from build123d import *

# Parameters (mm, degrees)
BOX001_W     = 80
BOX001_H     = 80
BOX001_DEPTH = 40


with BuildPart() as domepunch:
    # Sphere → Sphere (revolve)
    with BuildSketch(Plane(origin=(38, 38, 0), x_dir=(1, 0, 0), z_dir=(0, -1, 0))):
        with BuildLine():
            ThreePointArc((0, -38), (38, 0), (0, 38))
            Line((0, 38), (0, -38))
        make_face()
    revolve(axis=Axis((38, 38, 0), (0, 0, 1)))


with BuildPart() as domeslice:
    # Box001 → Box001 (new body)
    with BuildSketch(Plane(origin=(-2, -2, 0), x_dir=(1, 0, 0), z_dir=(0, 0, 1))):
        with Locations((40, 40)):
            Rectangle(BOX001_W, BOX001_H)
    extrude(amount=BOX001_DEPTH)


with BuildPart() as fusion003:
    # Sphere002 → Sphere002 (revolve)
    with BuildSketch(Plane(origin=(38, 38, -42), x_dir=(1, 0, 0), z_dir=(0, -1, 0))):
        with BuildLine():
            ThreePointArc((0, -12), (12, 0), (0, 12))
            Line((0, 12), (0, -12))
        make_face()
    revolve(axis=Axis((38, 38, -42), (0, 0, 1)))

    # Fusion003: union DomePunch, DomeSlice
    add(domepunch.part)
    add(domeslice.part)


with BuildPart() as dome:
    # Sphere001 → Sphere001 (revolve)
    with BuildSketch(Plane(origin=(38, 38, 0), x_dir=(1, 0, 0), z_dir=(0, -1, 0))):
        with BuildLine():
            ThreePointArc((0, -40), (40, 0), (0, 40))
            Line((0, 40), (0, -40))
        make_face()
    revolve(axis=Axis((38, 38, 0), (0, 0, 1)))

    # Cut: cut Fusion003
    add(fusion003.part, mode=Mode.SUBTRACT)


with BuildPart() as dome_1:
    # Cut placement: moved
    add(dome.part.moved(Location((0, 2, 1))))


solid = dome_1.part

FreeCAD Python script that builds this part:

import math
import FreeCAD as App
import Part
import Sketcher

V = App.Vector

doc = App.newDocument("Part")
body = doc.addObject("PartDesign::Body", "Body")

# Sketch on XZ plane
sketch1 = doc.addObject("Sketcher::SketchObject", "Sketch")
body.addObject(sketch1)
sketch1.AttachmentSupport = (doc.XZ_Plane, [""])
sketch1.MapMode = "FlatFace"
sketch1.AttachmentOffset = App.Placement(V(0, 0, -38), App.Rotation())
sketch1.addGeometry([
    Part.ArcOfCircle(Part.Circle(V(38, 0, 0), V(0, 0, 1), 38), math.radians(-90), math.radians(90)),
    Part.LineSegment(V(38, 38, 0), V(38, -38, 0)),
], False)
sketch1.addGeometry(Part.LineSegment(V(38, -38, 0), V(38, 38, 0)), True)  # axis
sketch1.addConstraint([
    Sketcher.Constraint("Coincident", 0, 1, 1, 2),
    Sketcher.Constraint("Coincident", 1, 1, 0, 2),
    Sketcher.Constraint("Vertical", 1),
    Sketcher.Constraint("Vertical", 2),
    Sketcher.Constraint("Coincident", 2, 1, 0, 1),
    Sketcher.Constraint("PointOnObject", 0, 3, -1),
    Sketcher.Constraint("Equal", 1, 2),
    Sketcher.Constraint("Radius", 0, 38.0),
    Sketcher.Constraint("DistanceX", -1, 1, 0, 3, 38.0),
    Sketcher.Constraint("DistanceX", -1, 1, 0, 1, 38.0),
])
revolution = doc.addObject("PartDesign::Revolution", "Revolution")
body.addObject(revolution)
revolution.Profile = sketch1
revolution.ReferenceAxis = (sketch1, ["Axis0"])
revolution.Angle = 360
body2 = doc.addObject("PartDesign::Body", "Body001")

# Sketch on XY plane
sketch2 = doc.addObject("Sketcher::SketchObject", "Sketch001")
body2.addObject(sketch2)
sketch2.AttachmentSupport = (doc.getObject("XY_Plane001"), [""])
sketch2.MapMode = "FlatFace"
sketch2.addGeometry([
    Part.LineSegment(V(-2, 78, 0), V(-2, -2, 0)),
    Part.LineSegment(V(-2, -2, 0), V(78, -2, 0)),
    Part.LineSegment(V(78, -2, 0), V(78, 78, 0)),
    Part.LineSegment(V(78, 78, 0), V(-2, 78, 0)),
], False)
sketch2.addConstraint([
    Sketcher.Constraint("Coincident", 0, 2, 1, 1),
    Sketcher.Constraint("Coincident", 1, 2, 2, 1),
    Sketcher.Constraint("Coincident", 2, 2, 3, 1),
    Sketcher.Constraint("Coincident", 3, 2, 0, 1),
    Sketcher.Constraint("Vertical", 0),
    Sketcher.Constraint("Horizontal", 1),
    Sketcher.Constraint("Vertical", 2),
    Sketcher.Constraint("Horizontal", 3),
    Sketcher.Constraint("Equal", 3, 0),
    Sketcher.Constraint("DistanceX", 1, 1, 1, 2, 80.0),
    Sketcher.Constraint("DistanceX", 0, 2, -1, 1, 2.0),
    Sketcher.Constraint("DistanceY", 0, 2, -1, 1, 2.0),
])
pad1 = doc.addObject("PartDesign::Pad", "Pad")
body2.addObject(pad1)
pad1.Profile = sketch2
pad1.Length = 40
body3 = doc.addObject("PartDesign::Body", "Body002")

# Sketch on XZ plane
sketch3 = doc.addObject("Sketcher::SketchObject", "Sketch002")
body3.addObject(sketch3)
sketch3.AttachmentSupport = (doc.getObject("XZ_Plane002"), [""])
sketch3.MapMode = "FlatFace"
sketch3.AttachmentOffset = App.Placement(V(0, 0, -38), App.Rotation())
sketch3.addGeometry([
    Part.ArcOfCircle(Part.Circle(V(38, -42, 0), V(0, 0, 1), 12), math.radians(-90), math.radians(90)),
    Part.LineSegment(V(38, -30, 0), V(38, -54, 0)),
], False)
sketch3.addGeometry(Part.LineSegment(V(38, -54, 0), V(38, -30, 0)), True)  # axis
sketch3.addConstraint([
    Sketcher.Constraint("Coincident", 0, 1, 1, 2),
    Sketcher.Constraint("Coincident", 1, 1, 0, 2),
    Sketcher.Constraint("Vertical", 1),
    Sketcher.Constraint("Vertical", 2),
    Sketcher.Constraint("Coincident", 2, 1, 0, 1),
    Sketcher.Constraint("Equal", 1, 2),
    Sketcher.Constraint("Radius", 0, 12.0),
    Sketcher.Constraint("DistanceX", -1, 1, 0, 3, 38.0),
    Sketcher.Constraint("DistanceY", 0, 3, -1, 1, 42.0),
    Sketcher.Constraint("DistanceX", -1, 1, 0, 1, 38.0),
])
revolution2 = doc.addObject("PartDesign::Revolution", "Revolution001")
body3.addObject(revolution2)
revolution2.Profile = sketch3
revolution2.ReferenceAxis = (sketch3, ["Axis0"])
revolution2.Angle = 360
doc.recompute()

boolean = doc.addObject("PartDesign::Boolean", "Boolean")
body3.addObject(boolean)
boolean.Type = "Fuse"
boolean.addObjects([body])
doc.recompute()

boolean2 = doc.addObject("PartDesign::Boolean", "Boolean001")
body3.addObject(boolean2)
boolean2.Type = "Fuse"
boolean2.addObjects([body2])
body4 = doc.addObject("PartDesign::Body", "Body003")

# Sketch on XZ plane
sketch4 = doc.addObject("Sketcher::SketchObject", "Sketch003")
body4.addObject(sketch4)
sketch4.AttachmentSupport = (doc.getObject("XZ_Plane003"), [""])
sketch4.MapMode = "FlatFace"
sketch4.AttachmentOffset = App.Placement(V(0, 0, -38), App.Rotation())
sketch4.addGeometry([
    Part.ArcOfCircle(Part.Circle(V(38, 0, 0), V(0, 0, 1), 40), math.radians(-90), math.radians(90)),
    Part.LineSegment(V(38, 40, 0), V(38, -40, 0)),
], False)
sketch4.addGeometry(Part.LineSegment(V(38, -40, 0), V(38, 40, 0)), True)  # axis
sketch4.addConstraint([
    Sketcher.Constraint("Coincident", 0, 1, 1, 2),
    Sketcher.Constraint("Coincident", 1, 1, 0, 2),
    Sketcher.Constraint("Vertical", 1),
    Sketcher.Constraint("Vertical", 2),
    Sketcher.Constraint("Coincident", 2, 1, 0, 1),
    Sketcher.Constraint("PointOnObject", 0, 3, -1),
    Sketcher.Constraint("Equal", 1, 2),
    Sketcher.Constraint("Radius", 0, 40.0),
    Sketcher.Constraint("DistanceX", -1, 1, 0, 3, 38.0),
    Sketcher.Constraint("DistanceX", -1, 1, 0, 1, 38.0),
])
revolution3 = doc.addObject("PartDesign::Revolution", "Revolution002")
body4.addObject(revolution3)
revolution3.Profile = sketch4
revolution3.ReferenceAxis = (sketch4, ["Axis0"])
revolution3.Angle = 360
doc.recompute()

boolean3 = doc.addObject("PartDesign::Boolean", "Boolean002")
body4.addObject(boolean3)
boolean3.Type = "Cut"
boolean3.addObjects([body3])
body5 = doc.addObject("PartDesign::Body", "Body004")
doc.recompute()

body4.Placement = App.Placement(V(0, 2, 1), App.Rotation(V(0, 0, 1), 0))
boolean4 = doc.addObject("PartDesign::Boolean", "Boolean003")
body5.addObject(boolean4)
boolean4.Type = "Fuse"
boolean4.addObjects([body4])

doc.recompute()
